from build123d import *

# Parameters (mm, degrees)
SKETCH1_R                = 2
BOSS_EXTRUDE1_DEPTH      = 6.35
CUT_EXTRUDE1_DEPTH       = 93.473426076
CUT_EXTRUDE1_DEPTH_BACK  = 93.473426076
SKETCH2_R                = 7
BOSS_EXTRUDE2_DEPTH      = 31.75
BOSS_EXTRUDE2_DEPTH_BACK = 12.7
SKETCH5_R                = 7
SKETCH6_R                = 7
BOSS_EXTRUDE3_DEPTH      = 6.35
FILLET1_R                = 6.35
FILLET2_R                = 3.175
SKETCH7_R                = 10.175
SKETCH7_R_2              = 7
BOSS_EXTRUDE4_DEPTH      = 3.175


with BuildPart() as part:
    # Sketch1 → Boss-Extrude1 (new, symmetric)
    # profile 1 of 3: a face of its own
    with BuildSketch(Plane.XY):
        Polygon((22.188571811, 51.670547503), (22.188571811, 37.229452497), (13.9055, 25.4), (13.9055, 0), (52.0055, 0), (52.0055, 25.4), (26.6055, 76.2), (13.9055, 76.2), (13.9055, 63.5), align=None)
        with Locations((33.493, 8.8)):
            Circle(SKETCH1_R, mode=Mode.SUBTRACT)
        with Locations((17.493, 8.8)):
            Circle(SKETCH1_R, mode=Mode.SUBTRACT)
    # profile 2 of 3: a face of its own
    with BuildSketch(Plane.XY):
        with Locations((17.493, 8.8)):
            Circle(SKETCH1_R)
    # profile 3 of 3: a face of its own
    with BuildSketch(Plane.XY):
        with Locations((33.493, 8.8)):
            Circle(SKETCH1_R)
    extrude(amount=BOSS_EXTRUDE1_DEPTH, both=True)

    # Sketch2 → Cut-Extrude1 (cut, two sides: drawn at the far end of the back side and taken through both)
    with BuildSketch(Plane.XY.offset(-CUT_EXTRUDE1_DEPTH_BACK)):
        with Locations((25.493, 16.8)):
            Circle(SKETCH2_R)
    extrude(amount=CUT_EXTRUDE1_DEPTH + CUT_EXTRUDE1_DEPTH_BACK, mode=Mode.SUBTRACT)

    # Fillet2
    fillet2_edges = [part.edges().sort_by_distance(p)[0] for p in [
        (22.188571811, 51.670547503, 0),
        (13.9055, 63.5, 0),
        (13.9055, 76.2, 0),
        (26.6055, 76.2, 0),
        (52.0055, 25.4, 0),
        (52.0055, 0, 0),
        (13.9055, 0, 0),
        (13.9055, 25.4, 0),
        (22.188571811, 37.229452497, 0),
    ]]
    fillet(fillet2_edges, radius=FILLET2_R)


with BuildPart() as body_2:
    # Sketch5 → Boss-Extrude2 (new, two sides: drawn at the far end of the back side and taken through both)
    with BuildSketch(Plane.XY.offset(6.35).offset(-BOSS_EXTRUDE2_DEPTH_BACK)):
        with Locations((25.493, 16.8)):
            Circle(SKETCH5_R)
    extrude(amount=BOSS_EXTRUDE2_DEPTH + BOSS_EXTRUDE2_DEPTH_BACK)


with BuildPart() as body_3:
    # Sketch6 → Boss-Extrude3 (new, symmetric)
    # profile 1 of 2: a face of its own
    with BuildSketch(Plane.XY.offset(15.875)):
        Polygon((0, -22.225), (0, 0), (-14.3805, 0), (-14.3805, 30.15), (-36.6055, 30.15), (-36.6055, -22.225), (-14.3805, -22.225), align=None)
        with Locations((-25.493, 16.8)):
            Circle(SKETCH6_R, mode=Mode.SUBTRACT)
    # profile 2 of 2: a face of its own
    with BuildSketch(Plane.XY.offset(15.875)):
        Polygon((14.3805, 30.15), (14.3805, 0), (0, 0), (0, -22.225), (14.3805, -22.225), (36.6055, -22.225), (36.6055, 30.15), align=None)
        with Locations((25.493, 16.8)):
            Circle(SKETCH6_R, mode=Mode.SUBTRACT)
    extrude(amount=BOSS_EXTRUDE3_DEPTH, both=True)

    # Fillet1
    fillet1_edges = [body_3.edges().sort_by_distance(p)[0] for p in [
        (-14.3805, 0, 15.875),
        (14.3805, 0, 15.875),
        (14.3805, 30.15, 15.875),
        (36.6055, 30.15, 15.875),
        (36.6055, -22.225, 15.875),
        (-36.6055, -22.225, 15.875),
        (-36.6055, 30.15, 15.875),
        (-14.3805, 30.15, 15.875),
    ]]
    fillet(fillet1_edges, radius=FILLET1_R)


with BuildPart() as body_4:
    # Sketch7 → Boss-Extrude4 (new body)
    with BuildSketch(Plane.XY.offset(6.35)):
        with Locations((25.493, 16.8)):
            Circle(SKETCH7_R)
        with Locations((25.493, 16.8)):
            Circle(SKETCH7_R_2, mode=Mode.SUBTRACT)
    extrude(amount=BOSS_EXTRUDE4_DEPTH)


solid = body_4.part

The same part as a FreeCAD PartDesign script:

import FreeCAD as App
import Part
import Sketcher
from FreeCAD import Vector
Q = App.Units.Quantity


def edges_at(feature, points):
    """Names of the edges that pass closest to the given points."""
    edges = feature.Shape.Edges
    near = lambda p: min(range(len(edges)), key=lambda i: edges[i].distToShape(Part.Vertex(*p))[0])
    return sorted({f"Edge{near(p) + 1}" for p in points})

doc = App.newDocument("Part")
body = doc.addObject("PartDesign::Body", "Body")

sketch1 = body.newObject("Sketcher::SketchObject", "Sketch")
sketch1.AttachmentSupport = (doc.getObject("XY_Plane"), [""])
sketch1.MapMode = "FlatFace"
sketch1.addGeometry([
    Part.LineSegment(Vector(22.188572, 51.670548, 0), Vector(22.188572, 37.229452, 0)),
    Part.LineSegment(Vector(22.188572, 37.229452, 0), Vector(13.9055, 25.4, 0)),
    Part.LineSegment(Vector(13.9055, 25.4, 0), Vector(13.9055, 0, 0)),
    Part.LineSegment(Vector(13.9055, 0, 0), Vector(52.0055, 0, 0)),
    Part.LineSegment(Vector(52.0055, 0, 0), Vector(52.0055, 25.4, 0)),
    Part.LineSegment(Vector(52.0055, 25.4, 0), Vector(26.6055, 76.2, 0)),
    Part.LineSegment(Vector(26.6055, 76.2, 0), Vector(13.9055, 76.2, 0)),
    Part.LineSegment(Vector(13.9055, 76.2, 0), Vector(13.9055, 63.5, 0)),
    Part.LineSegment(Vector(13.9055, 63.5, 0), Vector(22.188572, 51.670548, 0)),
], False)
sketch1.addConstraint([
    Sketcher.Constraint("Coincident", 0, 2, 1, 1),
    Sketcher.Constraint("Coincident", 1, 2, 2, 1),
    Sketcher.Constraint("Coincident", 2, 2, 3, 1),
    Sketcher.Constraint("Coincident", 3, 2, 4, 1),
    Sketcher.Constraint("Coincident", 4, 2, 5, 1),
    Sketcher.Constraint("Coincident", 5, 2, 6, 1),
    Sketcher.Constraint("Coincident", 6, 2, 7, 1),
    Sketcher.Constraint("Coincident", 7, 2, 8, 1),
    Sketcher.Constraint("Coincident", 8, 2, 0, 1),
    Sketcher.Constraint("Vertical", 0),
    Sketcher.Constraint("Vertical", 2),
    Sketcher.Constraint("Horizontal", 3),
    Sketcher.Constraint("Vertical", 4),
    Sketcher.Constraint("Horizontal", 6),
    Sketcher.Constraint("Vertical", 7),
    Sketcher.Constraint("PointOnObject", 2, 2, -1),
    Sketcher.Constraint("Horizontal", 1, 2, 4, 2),
    Sketcher.Constraint("Vertical", 2, 2, 6, 2),
    Sketcher.Constraint("Equal", 6, 7),
    Sketcher.Constraint("Equal", 1, 8),
    Sketcher.Constraint("DistanceY", 2, 2, 2, 1, Q("1 in")),
    Sketcher.Constraint("DistanceX", 3, 1, 3, 2, Q("1.5 in")),
    Sketcher.Constraint("DistanceX", 6, 2, 6, 1, Q("0.5 in")),
    Sketcher.Constraint("DistanceY", -1, 1, 5, 2, Q("3 in")),
    Sketcher.Constraint("Angle", 1, Q("-125 deg")),
    Sketcher.Constraint("DistanceX", -1, 1, 1, 2, 13.9055),
    Sketcher.Constraint("DistanceY", 0, 2, 0, 1, 14.441095),
])
pad1 = body.newObject("PartDesign::Pad", "Pad")
pad1.Profile = sketch1
pad1.Length = Q("0.5 in")
pad1.Midplane = True

sketch2 = body.newObject("Sketcher::SketchObject", "Sketch001")
sketch2.AttachmentSupport = (doc.getObject("XY_Plane"), [""])
sketch2.MapMode = "FlatFace"
sketch2.addGeometry(Part.Circle(Vector(25.493, 16.8, 0), Vector(0, 0, 1), 7), False)
sketch2.addConstraint([
    Sketcher.Constraint("Diameter", 0, 14.0),
    Sketcher.Constraint("DistanceX", -1, 1, 0, 3, 25.493),
    Sketcher.Constraint("DistanceY", -1, 1, 0, 3, 16.8),
])
pocket1 = body.newObject("PartDesign::Pocket", "Pocket")
pocket1.Profile = sketch2
pocket1.Type = "ThroughAll"
pocket1.Midplane = True
doc.recompute()

fillet = body.newObject("PartDesign::Fillet", "Fillet")
fillet.Base = (pocket1, edges_at(pocket1, [
    (22.189, 51.671, 0),
    (13.905, 63.5, 0),
    (13.905, 76.2, 0),
    (26.605, 76.2, 0),
    (52.005, 25.4, 0),
    (52.005, 0, 0),
    (13.905, 0, 0),
    (13.905, 25.4, 0),
    (22.189, 37.229, 0),
]))
fillet.Radius = Q("0.125 in")
body2 = doc.addObject("PartDesign::Body", "Body001")

sketch3 = body2.newObject("Sketcher::SketchObject", "Sketch002")
sketch3.AttachmentSupport = (doc.getObject("XY_Plane001"), [""])
sketch3.MapMode = "FlatFace"
sketch3.AttachmentOffset = App.Placement(Vector(0, 0, 0.25 * 25.4), App.Rotation())
sketch3.addGeometry(Part.Circle(Vector(25.493, 16.8, 0), Vector(0, 0, 1), 7), False)
sketch3.addConstraint([
    Sketcher.Constraint("Diameter", 0, 14.0),
    Sketcher.Constraint("DistanceX", -1, 1, 0, 3, 25.493),
    Sketcher.Constraint("DistanceY", -1, 1, 0, 3, 16.8),
])
pad2 = body2.newObject("PartDesign::Pad", "Pad001")
pad2.Profile = sketch3
pad2.Type = "TwoLengths"
pad2.Length = Q("1.25 in")
pad2.Length2 = Q("0.5 in")
body3 = doc.addObject("PartDesign::Body", "Body002")

sketch4 = body3.newObject("Sketcher::SketchObject", "Sketch003")
sketch4.AttachmentSupport = (doc.getObject("XY_Plane002"), [""])
sketch4.MapMode = "FlatFace"
sketch4.AttachmentOffset = App.Placement(Vector(0, 0, 0.625 * 25.4), App.Rotation())
sketch4.addGeometry([
    Part.LineSegment(Vector(-36.6055, -22.225, 0), Vector(36.6055, -22.225, 0)),
    Part.LineSegment(Vector(36.6055, -22.225, 0), Vector(36.6055, 30.15, 0)),
    Part.LineSegment(Vector(36.6055, 30.15, 0), Vector(14.3805, 30.15, 0)),
    Part.LineSegment(Vector(14.3805, 30.15, 0), Vector(14.3805, 0, 0)),
    Part.LineSegment(Vector(14.3805, 0, 0), Vector(-14.3805, 0, 0)),
    Part.LineSegment(Vector(-14.3805, 0, 0), Vector(-14.3805, 30.15, 0)),
    Part.LineSegment(Vector(-14.3805, 30.15, 0), Vector(-36.6055, 30.15, 0)),
    Part.LineSegment(Vector(-36.6055, 30.15, 0), Vector(-36.6055, -22.225, 0)),
    Part.Circle(Vector(-25.493, 16.8, 0), Vector(0, 0, 1), 7),
    Part.Circle(Vector(25.493, 16.8, 0), Vector(0, 0, 1), 7),
], False)
sketch4.addConstraint([
    Sketcher.Constraint("Coincident", 0, 2, 1, 1),
    Sketcher.Constraint("Coincident", 1, 2, 2, 1),
    Sketcher.Constraint("Coincident", 2, 2, 3, 1),
    Sketcher.Constraint("Coincident", 3, 2, 4, 1),
    Sketcher.Constraint("Coincident", 4, 2, 5, 1),
    Sketcher.Constraint("Coincident", 5, 2, 6, 1),
    Sketcher.Constraint("Coincident", 6, 2, 7, 1),
    Sketcher.Constraint("Coincident", 7, 2, 0, 1),
    Sketcher.Constraint("Horizontal", 0),
    Sketcher.Constraint("Vertical", 1),
    Sketcher.Constraint("Horizontal", 2),
    Sketcher.Constraint("Vertical", 3),
    Sketcher.Constraint("Horizontal", 4),
    Sketcher.Constraint("Vertical", 5),
    Sketcher.Constraint("Horizontal", 6),
    Sketcher.Constraint("Vertical", 7),
    Sketcher.Constraint("Equal", 8, 9),
    Sketcher.Constraint("Symmetric", 3, 2, 4, 2, -1, 1),
    Sketcher.Constraint("Symmetric", 8, 3, 9, 3, -2),
    Sketcher.Constraint("Symmetric", 1, 2, 6, 2, -2),
    Sketcher.Constraint("Diameter", 8, 14.0),
    Sketcher.Constraint("DistanceX", 2, 2, 2, 1, Q("0.875 in")),
    Sketcher.Constraint("DistanceY", 0, 2, -1, 1, Q("0.875 in")),
    Sketcher.Constraint("DistanceX", 9, 3, 0, 2, Q("0.4375 in")),
    Sketcher.Constraint("DistanceX", 0, 1, 0, 2, 73.211),
    Sketcher.Constraint("DistanceY", 1, 1, 1, 2, 52.375),
    Sketcher.Constraint("DistanceY", -1, 1, 8, 3, 16.8),
])
pad3 = body3.newObject("PartDesign::Pad", "Pad002")
pad3.Profile = sketch4
pad3.Length = Q("0.5 in")
pad3.Midplane = True
doc.recompute()

fillet2 = body3.newObject("PartDesign::Fillet", "Fillet001")
fillet2.Base = (pad3, edges_at(pad3, [
    (-14.38, 0, 15.875),
    (14.38, 0, 15.875),
    (14.38, 30.15, 15.875),
    (36.605, 30.15, 15.875),
    (36.605, -22.225, 15.875),
    (-36.605, -22.225, 15.875),
    (-36.605, 30.15, 15.875),
    (-14.38, 30.15, 15.875),
]))
fillet2.Radius = Q("0.25 in")
body4 = doc.addObject("PartDesign::Body", "Body003")

sketch5 = body4.newObject("Sketcher::SketchObject", "Sketch004")
sketch5.AttachmentSupport = (doc.getObject("XY_Plane003"), [""])
sketch5.MapMode = "FlatFace"
sketch5.AttachmentOffset = App.Placement(Vector(0, 0, 0.25 * 25.4), App.Rotation())
sketch5.addGeometry([
    Part.Circle(Vector(25.493, 16.8, 0), Vector(0, 0, 1), 10.175),
    Part.Circle(Vector(25.493, 16.8, 0), Vector(0, 0, 1), 7),
], False)
sketch5.addConstraint([
    Sketcher.Constraint("Coincident", 1, 3, 0, 3),
    Sketcher.Constraint("Diameter", 0, 20.35),
    Sketcher.Constraint("Diameter", 1, 14.0),
    Sketcher.Constraint("DistanceX", -1, 1, 0, 3, 25.493),
    Sketcher.Constraint("DistanceY", -1, 1, 0, 3, 16.8),
])
pad4 = body4.newObject("PartDesign::Pad", "Pad003")
pad4.Profile = sketch5
pad4.Length = Q("0.125 in")
body.Visibility = False
body2.Visibility = False
body3.Visibility = False

doc.recompute()
